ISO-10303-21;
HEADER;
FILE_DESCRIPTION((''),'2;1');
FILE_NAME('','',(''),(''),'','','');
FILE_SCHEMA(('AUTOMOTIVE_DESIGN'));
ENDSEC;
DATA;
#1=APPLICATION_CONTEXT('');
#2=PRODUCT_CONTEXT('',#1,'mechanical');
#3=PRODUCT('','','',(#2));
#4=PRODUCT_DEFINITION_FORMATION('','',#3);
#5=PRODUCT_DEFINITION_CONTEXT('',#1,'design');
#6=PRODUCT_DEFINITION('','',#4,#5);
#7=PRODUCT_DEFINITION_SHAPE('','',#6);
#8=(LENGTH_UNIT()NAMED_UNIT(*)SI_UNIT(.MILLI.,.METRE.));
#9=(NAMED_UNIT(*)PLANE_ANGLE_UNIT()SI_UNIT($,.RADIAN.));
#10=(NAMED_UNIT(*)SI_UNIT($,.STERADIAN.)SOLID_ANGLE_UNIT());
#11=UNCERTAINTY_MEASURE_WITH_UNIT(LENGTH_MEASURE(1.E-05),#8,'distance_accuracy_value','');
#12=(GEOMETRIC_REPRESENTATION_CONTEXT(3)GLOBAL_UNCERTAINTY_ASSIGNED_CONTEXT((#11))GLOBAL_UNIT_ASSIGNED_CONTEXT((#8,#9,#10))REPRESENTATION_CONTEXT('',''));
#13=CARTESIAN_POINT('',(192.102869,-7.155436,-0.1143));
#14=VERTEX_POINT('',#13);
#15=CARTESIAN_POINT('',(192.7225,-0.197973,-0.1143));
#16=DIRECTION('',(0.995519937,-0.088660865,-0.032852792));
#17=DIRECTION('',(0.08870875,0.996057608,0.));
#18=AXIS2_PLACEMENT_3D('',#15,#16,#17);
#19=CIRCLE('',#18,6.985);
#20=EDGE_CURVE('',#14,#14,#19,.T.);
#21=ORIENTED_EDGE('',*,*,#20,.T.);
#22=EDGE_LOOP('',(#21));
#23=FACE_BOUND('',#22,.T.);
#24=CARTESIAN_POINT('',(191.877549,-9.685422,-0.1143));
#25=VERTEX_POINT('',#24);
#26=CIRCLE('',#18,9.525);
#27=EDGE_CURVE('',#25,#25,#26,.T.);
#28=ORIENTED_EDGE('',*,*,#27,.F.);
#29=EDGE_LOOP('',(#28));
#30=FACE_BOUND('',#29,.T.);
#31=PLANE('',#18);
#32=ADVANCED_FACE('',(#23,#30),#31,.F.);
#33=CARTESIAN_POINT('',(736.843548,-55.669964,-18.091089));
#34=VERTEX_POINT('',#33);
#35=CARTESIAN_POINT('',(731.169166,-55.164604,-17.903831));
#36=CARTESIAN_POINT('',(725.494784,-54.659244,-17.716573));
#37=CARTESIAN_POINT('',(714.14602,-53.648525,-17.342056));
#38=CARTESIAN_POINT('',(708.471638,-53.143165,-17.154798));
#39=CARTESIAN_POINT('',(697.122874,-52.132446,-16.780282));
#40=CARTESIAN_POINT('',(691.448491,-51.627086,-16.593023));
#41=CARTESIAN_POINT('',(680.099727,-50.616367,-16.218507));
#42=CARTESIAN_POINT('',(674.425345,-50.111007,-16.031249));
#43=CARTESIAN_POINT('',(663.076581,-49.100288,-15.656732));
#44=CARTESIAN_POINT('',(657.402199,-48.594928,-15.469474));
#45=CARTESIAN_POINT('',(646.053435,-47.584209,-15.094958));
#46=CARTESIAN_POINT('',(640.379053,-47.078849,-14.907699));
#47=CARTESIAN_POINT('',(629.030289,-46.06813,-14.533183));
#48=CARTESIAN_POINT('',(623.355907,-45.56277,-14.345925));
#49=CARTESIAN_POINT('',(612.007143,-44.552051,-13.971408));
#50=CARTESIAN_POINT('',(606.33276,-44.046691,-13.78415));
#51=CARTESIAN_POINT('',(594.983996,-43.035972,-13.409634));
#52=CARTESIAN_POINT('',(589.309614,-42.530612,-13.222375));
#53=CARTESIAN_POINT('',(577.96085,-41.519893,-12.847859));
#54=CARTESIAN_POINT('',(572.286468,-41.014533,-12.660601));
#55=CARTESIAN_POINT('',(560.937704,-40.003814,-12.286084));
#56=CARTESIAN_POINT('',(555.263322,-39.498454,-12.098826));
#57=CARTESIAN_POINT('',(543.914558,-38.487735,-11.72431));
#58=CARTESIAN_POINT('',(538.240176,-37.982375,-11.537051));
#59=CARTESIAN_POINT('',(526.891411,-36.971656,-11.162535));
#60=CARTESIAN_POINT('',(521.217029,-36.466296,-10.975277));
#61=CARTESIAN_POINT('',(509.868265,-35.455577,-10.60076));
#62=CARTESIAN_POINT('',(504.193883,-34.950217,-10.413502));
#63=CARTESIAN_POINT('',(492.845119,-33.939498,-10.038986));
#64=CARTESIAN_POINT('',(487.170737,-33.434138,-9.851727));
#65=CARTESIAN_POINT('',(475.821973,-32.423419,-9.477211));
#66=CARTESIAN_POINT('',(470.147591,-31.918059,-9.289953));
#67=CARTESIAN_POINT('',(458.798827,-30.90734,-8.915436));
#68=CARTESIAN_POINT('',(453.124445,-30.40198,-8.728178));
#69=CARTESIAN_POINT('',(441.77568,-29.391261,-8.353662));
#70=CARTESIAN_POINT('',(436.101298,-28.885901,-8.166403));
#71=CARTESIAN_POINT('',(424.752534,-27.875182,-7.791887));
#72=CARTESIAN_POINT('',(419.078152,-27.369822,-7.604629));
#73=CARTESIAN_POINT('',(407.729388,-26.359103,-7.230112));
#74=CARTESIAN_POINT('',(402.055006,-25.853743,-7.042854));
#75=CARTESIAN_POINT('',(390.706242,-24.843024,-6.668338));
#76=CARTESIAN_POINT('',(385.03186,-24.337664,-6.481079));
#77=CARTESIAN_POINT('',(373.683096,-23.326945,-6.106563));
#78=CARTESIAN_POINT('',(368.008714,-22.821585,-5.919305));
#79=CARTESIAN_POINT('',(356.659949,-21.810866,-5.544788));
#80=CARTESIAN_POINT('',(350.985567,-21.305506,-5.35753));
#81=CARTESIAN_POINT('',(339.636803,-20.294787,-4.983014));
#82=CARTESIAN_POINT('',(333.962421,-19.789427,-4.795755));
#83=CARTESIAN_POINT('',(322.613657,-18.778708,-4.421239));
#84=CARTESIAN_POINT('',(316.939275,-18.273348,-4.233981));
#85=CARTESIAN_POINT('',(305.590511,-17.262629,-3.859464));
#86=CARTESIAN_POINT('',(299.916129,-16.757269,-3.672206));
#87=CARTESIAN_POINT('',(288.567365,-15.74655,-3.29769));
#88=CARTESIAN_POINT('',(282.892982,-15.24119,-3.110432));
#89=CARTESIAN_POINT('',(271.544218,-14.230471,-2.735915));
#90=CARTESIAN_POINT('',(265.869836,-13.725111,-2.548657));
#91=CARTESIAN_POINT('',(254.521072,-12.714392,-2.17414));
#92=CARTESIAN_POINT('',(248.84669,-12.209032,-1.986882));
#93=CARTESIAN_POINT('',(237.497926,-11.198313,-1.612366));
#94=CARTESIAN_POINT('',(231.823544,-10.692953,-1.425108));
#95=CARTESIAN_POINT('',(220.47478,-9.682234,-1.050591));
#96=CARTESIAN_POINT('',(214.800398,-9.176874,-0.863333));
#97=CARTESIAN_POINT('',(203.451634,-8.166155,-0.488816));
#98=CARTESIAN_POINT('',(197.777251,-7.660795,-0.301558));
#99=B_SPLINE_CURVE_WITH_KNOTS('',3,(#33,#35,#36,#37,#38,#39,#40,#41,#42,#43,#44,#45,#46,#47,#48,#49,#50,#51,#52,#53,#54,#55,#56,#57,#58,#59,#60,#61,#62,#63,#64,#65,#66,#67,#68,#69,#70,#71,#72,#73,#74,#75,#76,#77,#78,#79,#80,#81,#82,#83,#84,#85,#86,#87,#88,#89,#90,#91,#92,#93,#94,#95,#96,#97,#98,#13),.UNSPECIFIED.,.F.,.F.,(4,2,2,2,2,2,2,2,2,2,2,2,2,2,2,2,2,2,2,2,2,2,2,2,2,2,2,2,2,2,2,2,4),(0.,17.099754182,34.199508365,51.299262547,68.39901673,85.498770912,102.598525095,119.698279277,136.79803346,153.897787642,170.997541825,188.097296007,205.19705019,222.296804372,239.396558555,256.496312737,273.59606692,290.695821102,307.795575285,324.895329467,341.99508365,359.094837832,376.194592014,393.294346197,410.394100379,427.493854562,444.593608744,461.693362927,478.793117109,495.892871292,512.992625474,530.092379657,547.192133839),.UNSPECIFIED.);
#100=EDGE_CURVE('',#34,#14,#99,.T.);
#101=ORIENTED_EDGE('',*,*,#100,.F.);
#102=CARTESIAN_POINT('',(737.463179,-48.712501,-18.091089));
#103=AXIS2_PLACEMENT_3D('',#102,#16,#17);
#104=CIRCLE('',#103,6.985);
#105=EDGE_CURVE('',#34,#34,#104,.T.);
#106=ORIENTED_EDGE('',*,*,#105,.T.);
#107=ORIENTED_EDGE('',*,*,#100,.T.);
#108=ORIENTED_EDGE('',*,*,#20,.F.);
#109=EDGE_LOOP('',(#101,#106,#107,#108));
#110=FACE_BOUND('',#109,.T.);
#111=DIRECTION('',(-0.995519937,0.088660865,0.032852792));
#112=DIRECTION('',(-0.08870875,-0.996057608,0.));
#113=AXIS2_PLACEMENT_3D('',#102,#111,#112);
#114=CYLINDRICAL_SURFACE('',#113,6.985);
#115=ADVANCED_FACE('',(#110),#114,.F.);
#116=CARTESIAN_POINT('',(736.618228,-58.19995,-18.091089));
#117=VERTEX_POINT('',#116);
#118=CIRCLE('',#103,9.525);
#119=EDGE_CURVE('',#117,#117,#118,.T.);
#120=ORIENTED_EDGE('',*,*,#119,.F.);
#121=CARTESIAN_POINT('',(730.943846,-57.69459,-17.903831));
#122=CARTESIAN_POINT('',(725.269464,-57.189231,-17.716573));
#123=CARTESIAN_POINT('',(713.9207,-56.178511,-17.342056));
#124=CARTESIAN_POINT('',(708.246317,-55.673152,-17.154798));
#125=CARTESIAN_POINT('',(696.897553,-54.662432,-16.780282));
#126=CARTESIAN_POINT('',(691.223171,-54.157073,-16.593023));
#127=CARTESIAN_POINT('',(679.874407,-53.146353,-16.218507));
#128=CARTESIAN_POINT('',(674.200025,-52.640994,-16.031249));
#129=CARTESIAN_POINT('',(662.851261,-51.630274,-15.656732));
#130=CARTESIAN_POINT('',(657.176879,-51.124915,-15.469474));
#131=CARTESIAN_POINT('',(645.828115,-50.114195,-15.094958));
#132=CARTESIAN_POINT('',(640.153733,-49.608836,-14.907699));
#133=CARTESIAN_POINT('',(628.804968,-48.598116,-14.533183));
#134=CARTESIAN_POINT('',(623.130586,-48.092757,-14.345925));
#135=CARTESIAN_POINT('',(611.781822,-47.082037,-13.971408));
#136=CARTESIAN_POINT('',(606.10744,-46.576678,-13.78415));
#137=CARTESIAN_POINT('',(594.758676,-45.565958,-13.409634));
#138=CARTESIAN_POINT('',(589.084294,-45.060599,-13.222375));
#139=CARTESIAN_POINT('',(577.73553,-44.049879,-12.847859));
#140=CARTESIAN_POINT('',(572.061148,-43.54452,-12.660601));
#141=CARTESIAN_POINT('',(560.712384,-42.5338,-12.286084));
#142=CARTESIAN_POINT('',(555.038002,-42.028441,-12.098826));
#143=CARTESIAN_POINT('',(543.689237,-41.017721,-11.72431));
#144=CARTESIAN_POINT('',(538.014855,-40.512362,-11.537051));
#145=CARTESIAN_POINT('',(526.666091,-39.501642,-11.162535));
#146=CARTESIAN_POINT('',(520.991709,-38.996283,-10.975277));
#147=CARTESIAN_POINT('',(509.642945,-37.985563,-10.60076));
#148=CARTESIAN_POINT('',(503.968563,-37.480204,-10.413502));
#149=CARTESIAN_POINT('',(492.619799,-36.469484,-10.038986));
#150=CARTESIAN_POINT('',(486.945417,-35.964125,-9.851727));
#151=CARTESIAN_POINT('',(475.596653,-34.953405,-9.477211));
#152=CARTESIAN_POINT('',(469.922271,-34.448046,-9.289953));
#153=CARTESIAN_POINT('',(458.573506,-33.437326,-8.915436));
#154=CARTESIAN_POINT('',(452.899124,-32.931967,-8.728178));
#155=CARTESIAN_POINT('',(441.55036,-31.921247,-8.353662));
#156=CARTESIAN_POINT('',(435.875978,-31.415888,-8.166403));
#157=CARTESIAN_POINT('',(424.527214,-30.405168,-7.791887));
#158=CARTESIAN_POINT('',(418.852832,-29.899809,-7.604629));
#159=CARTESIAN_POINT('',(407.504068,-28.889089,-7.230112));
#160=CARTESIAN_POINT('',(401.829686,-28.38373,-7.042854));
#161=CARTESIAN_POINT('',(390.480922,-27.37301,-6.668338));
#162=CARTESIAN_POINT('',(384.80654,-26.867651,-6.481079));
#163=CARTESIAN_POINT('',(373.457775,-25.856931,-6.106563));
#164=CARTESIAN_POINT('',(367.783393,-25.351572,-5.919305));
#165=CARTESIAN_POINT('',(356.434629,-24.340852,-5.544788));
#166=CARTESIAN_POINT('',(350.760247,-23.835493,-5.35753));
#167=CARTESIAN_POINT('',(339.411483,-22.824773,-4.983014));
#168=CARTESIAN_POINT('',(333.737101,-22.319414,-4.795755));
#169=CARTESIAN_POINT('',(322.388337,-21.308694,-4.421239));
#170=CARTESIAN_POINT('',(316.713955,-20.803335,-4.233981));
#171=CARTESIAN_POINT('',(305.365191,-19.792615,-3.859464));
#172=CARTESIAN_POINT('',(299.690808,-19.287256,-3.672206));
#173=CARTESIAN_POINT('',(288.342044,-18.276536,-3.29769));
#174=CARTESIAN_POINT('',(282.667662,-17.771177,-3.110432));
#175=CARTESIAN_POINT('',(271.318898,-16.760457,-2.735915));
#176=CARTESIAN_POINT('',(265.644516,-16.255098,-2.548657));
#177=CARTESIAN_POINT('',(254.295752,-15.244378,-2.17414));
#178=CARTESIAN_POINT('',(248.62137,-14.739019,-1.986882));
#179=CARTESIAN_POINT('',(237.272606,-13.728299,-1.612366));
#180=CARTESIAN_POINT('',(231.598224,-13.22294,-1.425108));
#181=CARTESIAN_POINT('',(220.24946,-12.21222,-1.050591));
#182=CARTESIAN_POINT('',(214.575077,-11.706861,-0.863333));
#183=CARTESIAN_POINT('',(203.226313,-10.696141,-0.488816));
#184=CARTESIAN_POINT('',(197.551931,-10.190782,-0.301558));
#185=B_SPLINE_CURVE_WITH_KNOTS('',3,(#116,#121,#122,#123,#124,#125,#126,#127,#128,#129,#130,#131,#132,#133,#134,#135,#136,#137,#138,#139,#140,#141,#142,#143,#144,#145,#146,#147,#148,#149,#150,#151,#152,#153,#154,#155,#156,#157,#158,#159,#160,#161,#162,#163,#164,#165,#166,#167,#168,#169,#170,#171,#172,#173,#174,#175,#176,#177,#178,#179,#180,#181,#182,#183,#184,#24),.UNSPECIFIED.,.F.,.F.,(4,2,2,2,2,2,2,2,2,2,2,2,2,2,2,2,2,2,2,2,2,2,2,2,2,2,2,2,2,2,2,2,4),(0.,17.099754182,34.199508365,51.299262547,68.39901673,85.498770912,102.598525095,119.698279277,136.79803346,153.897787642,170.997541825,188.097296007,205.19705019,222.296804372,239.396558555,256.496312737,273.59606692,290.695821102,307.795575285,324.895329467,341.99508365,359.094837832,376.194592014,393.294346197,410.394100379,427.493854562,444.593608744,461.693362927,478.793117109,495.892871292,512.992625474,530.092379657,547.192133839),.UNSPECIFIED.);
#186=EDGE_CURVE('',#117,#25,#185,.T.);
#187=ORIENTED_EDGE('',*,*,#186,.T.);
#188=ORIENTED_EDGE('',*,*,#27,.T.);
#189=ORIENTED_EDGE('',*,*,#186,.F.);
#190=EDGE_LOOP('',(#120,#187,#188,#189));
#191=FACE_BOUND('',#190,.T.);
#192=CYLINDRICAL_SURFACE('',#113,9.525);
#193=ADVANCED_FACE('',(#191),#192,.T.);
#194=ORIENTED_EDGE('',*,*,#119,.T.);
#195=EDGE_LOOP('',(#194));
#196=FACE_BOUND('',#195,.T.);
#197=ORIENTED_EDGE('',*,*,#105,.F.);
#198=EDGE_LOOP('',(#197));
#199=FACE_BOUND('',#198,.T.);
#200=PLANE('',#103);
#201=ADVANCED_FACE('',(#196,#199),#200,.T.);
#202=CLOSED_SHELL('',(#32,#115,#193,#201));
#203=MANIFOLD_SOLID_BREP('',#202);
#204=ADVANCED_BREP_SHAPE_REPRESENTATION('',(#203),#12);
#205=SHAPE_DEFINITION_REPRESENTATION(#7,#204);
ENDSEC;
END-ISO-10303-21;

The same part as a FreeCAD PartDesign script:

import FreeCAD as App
import Part
import Sketcher
Q = App.Units.Quantity

doc = App.newDocument("Part")
params = doc.addObject("Spreadsheet::Sheet", "Params")
for row, (alias, value) in enumerate([
    ("sketch1_diameter", "0.75 in"),
    ("sketch1_diameter2", "0.55 in"),
    ("pad1_length", "547.192134 mm"),
], start=1):
    params.set(f"A{row}", alias)
    params.set(f"B{row}", "=" + value)
    params.setAlias(f"B{row}", alias)

body = doc.addObject("PartDesign::Body", "Body")

# Sketch on an angled plane
sketch1 = body.newObject("Sketcher::SketchObject", "Sketch")
sketch1.Placement = App.Placement(App.Vector(192.7225, -0.197973, -0.1143), App.Rotation(App.Vector(-0.024725023, 0.091261866, -0.995519937), App.Vector(0.091261866, 0.991872231, 0.088660865), App.Vector(0.995519937, -0.088660865, -0.032852792), "ZXY"))
sketch1.addGeometry([
    Part.Circle(App.Vector(0, 0, 0), App.Vector(0, 0, 1), 10),
    Part.Circle(App.Vector(0, 0, 0), App.Vector(0, 0, 1), 7),
], False)
sketch1.addConstraint([
    Sketcher.Constraint("Coincident", 0, 3, -1, 1),
    Sketcher.Constraint("Coincident", 1, 3, -1, 1),
    Sketcher.Constraint("Diameter", 0, Q("0.75 in")),
    Sketcher.Constraint("Diameter", 1, Q("0.55 in")),
])
sketch1.setExpression("Constraints[2]", "Params.sketch1_diameter")
sketch1.setExpression("Constraints[3]", "Params.sketch1_diameter2")
pad1 = body.newObject("PartDesign::Pad", "Pad")
pad1.Profile = sketch1
pad1.setExpression("Length", "Params.pad1_length")

doc.recompute()
